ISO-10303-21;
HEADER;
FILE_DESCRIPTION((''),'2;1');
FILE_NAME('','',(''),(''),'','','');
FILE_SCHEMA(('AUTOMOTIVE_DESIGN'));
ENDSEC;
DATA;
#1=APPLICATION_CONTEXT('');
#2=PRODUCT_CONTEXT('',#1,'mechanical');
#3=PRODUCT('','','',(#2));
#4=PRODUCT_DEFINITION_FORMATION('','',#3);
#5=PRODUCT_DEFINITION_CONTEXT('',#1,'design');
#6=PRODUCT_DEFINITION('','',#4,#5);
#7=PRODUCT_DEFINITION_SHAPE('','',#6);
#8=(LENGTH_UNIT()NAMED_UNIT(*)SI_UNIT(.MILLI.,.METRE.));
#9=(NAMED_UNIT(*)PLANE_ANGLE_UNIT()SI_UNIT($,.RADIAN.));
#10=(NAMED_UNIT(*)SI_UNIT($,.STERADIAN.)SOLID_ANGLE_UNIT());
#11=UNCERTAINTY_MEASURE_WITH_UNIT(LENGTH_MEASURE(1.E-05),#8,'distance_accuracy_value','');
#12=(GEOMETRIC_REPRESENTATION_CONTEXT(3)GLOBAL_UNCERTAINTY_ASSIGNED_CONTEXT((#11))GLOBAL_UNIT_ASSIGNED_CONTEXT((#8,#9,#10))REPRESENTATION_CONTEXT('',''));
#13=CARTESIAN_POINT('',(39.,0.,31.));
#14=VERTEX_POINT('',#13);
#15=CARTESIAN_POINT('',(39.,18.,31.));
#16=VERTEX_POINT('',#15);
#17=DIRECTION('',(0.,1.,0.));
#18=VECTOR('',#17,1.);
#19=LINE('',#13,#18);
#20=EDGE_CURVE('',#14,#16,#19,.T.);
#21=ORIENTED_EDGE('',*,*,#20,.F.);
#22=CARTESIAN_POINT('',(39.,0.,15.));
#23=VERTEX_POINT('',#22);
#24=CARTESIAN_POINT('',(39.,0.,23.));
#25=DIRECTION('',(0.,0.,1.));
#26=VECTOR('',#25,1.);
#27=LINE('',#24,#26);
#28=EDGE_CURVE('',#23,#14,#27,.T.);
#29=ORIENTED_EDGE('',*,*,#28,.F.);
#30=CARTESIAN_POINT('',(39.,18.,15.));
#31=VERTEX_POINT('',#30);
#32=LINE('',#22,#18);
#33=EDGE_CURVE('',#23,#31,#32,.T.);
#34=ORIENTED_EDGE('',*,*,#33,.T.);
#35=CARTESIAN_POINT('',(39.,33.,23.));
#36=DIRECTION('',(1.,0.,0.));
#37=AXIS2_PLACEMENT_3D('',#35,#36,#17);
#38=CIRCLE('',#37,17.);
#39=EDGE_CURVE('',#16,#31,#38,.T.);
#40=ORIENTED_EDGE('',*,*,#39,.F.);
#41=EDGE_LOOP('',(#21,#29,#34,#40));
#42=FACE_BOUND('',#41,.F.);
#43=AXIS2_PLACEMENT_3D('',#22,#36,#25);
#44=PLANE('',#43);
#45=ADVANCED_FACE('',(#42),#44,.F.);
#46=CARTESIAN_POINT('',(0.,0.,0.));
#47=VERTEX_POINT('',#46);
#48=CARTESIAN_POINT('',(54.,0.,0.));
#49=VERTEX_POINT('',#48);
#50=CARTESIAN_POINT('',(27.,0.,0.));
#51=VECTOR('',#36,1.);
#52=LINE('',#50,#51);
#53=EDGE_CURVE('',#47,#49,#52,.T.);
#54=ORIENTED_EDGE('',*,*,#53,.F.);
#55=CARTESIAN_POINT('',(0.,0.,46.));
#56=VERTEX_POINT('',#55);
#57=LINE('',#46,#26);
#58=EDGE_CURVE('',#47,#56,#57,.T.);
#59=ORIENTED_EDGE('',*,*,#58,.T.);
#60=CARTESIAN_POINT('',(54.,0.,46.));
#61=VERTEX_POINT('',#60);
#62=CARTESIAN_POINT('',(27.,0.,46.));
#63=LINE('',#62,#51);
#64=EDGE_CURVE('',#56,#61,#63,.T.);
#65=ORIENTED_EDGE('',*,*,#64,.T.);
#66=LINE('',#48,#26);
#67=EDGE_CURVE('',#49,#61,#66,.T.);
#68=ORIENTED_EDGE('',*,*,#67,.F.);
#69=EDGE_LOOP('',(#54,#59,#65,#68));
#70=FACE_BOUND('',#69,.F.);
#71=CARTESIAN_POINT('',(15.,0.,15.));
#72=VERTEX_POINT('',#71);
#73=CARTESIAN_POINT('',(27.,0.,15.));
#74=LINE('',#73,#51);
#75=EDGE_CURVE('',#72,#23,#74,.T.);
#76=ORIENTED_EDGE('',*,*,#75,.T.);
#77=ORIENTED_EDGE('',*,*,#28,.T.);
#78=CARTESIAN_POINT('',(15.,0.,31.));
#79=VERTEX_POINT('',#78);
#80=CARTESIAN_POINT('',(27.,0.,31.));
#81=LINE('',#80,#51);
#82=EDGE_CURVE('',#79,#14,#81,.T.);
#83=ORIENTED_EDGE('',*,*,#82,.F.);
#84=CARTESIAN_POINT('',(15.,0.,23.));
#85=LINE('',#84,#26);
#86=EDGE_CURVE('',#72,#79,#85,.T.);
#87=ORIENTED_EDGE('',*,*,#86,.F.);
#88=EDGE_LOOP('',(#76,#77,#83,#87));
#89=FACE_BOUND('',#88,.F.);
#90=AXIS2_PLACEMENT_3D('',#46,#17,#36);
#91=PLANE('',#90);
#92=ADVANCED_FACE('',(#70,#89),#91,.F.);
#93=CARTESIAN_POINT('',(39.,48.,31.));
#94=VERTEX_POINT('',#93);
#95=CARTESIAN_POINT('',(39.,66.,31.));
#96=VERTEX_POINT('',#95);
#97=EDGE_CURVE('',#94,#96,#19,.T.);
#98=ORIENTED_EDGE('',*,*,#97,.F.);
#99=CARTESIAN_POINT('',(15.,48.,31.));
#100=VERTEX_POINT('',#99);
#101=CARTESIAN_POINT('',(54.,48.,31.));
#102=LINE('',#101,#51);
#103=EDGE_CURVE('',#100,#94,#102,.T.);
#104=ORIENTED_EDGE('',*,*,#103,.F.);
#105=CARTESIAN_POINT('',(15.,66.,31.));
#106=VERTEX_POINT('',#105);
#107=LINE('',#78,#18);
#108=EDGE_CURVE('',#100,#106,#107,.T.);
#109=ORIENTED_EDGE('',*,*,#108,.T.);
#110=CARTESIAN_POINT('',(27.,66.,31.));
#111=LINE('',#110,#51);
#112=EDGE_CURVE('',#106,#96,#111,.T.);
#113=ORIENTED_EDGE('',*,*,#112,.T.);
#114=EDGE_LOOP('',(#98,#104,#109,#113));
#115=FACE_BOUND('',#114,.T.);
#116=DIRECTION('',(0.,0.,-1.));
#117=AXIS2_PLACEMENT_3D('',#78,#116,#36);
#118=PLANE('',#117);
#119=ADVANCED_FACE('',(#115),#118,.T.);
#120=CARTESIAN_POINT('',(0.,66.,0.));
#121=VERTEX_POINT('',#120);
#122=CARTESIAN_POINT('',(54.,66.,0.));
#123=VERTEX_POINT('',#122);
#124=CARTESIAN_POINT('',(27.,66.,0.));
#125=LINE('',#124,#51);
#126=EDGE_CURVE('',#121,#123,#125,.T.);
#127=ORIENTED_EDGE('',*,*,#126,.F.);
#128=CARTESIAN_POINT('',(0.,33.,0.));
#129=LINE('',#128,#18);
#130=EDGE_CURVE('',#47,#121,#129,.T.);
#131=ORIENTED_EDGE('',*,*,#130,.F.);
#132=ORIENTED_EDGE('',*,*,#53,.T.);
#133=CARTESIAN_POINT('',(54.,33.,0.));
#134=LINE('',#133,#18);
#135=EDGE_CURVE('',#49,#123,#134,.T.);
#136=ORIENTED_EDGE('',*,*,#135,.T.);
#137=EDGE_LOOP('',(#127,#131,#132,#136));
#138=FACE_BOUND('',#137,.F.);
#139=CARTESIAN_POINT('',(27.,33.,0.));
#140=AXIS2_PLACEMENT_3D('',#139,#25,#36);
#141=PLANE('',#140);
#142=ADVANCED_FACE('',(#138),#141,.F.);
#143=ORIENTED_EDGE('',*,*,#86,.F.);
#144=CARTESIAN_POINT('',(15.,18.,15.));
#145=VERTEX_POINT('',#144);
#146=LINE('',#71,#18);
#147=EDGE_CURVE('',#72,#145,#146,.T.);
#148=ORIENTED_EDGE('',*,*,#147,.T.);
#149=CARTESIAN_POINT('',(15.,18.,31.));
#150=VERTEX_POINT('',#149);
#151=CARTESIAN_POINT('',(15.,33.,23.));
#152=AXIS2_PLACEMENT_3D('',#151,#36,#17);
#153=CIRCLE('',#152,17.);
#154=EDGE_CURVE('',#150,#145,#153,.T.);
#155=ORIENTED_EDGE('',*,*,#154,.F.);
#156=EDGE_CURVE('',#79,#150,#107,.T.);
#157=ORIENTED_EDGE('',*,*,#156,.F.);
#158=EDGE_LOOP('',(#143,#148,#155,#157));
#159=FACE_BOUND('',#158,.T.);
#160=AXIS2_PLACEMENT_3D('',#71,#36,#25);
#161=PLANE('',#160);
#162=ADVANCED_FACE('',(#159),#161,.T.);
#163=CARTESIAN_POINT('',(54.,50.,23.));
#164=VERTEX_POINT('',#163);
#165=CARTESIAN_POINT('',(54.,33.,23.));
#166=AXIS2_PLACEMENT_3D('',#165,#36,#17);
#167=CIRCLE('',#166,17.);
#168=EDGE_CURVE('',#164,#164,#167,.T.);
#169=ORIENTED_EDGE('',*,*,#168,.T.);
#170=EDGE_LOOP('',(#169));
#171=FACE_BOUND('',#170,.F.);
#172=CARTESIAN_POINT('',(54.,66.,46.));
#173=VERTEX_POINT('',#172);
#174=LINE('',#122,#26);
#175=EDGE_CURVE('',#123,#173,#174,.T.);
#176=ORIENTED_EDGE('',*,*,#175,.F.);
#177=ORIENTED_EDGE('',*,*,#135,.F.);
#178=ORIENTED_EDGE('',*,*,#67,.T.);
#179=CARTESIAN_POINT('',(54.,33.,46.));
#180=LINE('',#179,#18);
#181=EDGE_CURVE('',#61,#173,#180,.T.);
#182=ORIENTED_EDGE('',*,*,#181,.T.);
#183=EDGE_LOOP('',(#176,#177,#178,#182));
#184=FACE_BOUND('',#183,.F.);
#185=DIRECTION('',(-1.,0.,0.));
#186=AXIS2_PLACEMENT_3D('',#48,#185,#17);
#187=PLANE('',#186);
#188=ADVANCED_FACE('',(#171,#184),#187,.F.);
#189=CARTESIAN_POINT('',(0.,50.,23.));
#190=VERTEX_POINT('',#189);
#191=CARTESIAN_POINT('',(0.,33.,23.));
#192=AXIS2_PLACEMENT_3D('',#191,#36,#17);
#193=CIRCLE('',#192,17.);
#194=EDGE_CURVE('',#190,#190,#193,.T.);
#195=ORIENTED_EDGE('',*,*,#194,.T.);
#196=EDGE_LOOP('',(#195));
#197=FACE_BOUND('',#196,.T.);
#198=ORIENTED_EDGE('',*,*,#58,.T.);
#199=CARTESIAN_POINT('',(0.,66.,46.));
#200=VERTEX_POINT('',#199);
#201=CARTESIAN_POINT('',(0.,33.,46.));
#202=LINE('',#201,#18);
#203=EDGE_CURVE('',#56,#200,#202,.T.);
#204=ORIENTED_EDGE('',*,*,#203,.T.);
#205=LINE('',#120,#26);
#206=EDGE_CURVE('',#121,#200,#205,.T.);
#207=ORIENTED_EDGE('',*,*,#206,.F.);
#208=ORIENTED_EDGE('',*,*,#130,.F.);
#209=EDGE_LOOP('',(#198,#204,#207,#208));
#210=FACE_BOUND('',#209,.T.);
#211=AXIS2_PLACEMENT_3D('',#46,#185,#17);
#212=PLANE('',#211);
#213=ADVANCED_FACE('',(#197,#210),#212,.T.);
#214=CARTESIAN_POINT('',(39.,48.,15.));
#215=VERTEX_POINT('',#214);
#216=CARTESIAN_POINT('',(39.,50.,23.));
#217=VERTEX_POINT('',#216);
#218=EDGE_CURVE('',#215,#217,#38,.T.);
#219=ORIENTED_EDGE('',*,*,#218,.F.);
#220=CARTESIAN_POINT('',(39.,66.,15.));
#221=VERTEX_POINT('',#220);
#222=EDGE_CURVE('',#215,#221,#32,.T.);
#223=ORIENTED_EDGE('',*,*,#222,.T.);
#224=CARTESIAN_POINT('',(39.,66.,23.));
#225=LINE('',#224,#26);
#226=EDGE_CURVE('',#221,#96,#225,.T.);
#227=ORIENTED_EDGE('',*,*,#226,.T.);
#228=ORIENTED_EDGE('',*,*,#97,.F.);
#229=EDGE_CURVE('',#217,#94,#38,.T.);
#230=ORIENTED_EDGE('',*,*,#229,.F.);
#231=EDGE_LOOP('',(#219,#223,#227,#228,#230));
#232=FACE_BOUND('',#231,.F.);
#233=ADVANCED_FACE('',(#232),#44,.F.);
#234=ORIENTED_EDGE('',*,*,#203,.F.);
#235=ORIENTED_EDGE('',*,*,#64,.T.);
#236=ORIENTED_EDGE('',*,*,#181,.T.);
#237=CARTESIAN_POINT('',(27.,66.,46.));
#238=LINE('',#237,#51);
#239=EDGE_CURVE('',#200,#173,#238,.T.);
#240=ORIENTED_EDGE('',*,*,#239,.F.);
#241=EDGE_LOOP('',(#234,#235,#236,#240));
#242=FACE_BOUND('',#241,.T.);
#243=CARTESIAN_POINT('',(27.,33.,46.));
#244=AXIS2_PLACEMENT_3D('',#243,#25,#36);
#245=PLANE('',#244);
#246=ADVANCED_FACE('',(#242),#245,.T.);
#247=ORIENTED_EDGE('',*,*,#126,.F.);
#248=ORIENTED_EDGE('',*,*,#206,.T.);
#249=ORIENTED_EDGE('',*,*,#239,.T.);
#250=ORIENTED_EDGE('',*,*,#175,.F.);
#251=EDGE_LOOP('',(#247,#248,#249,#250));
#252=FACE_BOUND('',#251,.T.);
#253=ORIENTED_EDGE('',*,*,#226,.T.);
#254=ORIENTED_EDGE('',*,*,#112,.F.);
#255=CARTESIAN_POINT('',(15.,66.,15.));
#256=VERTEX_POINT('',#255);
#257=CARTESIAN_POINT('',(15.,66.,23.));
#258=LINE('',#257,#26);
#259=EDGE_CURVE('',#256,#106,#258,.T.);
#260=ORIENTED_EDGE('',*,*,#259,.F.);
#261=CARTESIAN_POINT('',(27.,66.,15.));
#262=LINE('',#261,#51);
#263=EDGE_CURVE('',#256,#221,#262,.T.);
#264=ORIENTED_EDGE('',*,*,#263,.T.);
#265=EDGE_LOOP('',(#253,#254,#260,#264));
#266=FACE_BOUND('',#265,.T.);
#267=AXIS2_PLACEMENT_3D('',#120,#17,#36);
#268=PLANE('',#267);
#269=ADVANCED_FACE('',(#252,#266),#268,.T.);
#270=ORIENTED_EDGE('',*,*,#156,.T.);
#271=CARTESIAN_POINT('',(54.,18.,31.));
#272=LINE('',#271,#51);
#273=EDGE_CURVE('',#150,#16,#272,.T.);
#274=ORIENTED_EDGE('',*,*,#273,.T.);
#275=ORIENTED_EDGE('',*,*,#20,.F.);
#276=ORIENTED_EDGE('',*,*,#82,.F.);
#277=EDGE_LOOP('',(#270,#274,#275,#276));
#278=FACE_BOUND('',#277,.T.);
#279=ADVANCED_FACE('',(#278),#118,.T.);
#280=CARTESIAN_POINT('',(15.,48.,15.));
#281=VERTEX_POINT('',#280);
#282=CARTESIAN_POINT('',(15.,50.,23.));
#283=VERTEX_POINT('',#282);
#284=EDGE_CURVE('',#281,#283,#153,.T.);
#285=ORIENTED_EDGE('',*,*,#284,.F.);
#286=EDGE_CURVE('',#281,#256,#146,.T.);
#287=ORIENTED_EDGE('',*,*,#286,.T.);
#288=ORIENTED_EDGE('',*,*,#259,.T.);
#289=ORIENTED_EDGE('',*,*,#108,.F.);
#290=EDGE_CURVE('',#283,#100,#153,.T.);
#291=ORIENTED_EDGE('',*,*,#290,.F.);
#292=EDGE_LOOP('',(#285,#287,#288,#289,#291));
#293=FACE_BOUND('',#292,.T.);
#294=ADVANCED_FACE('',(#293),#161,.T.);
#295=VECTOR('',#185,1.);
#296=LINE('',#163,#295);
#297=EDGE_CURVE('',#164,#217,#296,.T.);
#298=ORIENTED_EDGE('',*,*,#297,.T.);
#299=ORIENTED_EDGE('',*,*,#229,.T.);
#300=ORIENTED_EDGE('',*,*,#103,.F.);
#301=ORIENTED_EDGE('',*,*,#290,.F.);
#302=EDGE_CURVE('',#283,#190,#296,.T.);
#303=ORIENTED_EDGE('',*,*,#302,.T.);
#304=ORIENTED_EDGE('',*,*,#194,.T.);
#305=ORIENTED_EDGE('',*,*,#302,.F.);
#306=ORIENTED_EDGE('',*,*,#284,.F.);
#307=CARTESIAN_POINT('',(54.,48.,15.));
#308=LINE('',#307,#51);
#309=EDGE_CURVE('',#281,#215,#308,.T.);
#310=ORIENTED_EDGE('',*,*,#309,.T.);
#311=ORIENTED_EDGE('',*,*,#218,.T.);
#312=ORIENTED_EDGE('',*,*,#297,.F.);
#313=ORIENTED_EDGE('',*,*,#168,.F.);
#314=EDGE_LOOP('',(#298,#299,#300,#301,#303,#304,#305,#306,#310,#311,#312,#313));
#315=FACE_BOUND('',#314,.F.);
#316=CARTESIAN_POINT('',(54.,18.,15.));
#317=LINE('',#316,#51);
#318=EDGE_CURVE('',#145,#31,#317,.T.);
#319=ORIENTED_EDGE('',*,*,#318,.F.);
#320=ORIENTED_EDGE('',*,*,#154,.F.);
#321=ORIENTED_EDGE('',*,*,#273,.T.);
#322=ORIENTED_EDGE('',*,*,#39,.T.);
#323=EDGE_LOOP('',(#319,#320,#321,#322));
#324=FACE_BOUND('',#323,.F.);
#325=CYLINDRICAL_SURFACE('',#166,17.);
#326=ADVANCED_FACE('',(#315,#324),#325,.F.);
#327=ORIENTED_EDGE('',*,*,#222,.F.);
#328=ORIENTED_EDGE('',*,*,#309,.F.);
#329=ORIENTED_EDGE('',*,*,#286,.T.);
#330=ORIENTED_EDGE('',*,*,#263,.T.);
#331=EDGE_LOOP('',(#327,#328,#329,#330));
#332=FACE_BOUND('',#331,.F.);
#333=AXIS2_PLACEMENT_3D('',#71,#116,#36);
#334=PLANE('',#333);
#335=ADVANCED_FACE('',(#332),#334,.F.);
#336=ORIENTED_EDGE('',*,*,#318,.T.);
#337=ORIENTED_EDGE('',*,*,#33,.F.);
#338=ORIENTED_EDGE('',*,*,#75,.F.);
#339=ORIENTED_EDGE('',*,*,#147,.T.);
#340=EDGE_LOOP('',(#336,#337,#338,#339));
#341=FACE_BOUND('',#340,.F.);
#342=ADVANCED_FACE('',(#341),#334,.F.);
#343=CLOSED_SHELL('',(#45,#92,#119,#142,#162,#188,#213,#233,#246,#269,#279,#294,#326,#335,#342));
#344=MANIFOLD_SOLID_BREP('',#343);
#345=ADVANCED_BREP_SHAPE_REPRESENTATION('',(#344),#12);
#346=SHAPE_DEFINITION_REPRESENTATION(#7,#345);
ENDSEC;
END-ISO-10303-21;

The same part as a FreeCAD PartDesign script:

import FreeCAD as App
import Part
import Sketcher
Q = App.Units.Quantity

doc = App.newDocument("Part")
body = doc.addObject("PartDesign::Body", "Body")

# Sketch on XY plane
sketch1 = body.newObject("Sketcher::SketchObject", "Sketch")
sketch1.AttachmentSupport = (doc.getObject("XY_Plane"), [""])
sketch1.MapMode = "FlatFace"
sketch1.addGeometry([
    Part.LineSegment(App.Vector(0, 66, 0), App.Vector(0, 0, 0)),
    Part.LineSegment(App.Vector(0, 0, 0), App.Vector(54, 0, 0)),
    Part.LineSegment(App.Vector(54, 0, 0), App.Vector(54, 66, 0)),
    Part.LineSegment(App.Vector(54, 66, 0), App.Vector(0, 66, 0)),
], False)
sketch1.addConstraint([
    Sketcher.Constraint("Coincident", 0, 2, 1, 1),
    Sketcher.Constraint("Coincident", 1, 2, 2, 1),
    Sketcher.Constraint("Coincident", 2, 2, 3, 1),
    Sketcher.Constraint("Coincident", 3, 2, 0, 1),
    Sketcher.Constraint("Vertical", 0),
    Sketcher.Constraint("Horizontal", 1),
    Sketcher.Constraint("Vertical", 2),
    Sketcher.Constraint("Horizontal", 3),
    Sketcher.Constraint("Coincident", 0, 2, -1, 1),
    Sketcher.Constraint("DistanceX", 1, 1, 1, 2, Q("54 mm")),
    Sketcher.Constraint("DistanceY", 0, 2, 0, 1, Q("66 mm")),
])
pad1 = body.newObject("PartDesign::Pad", "Pad")
pad1.Profile = sketch1
pad1.Length = 46

# Sketch on XZ plane
sketch2 = body.newObject("Sketcher::SketchObject", "Sketch001")
sketch2.AttachmentSupport = (doc.getObject("XZ_Plane"), [""])
sketch2.MapMode = "FlatFace"
sketch2.addGeometry([
    Part.LineSegment(App.Vector(15, 31, 0), App.Vector(15, 15, 0)),
    Part.LineSegment(App.Vector(15, 15, 0), App.Vector(39, 15, 0)),
    Part.LineSegment(App.Vector(39, 15, 0), App.Vector(39, 31, 0)),
    Part.LineSegment(App.Vector(39, 31, 0), App.Vector(15, 31, 0)),
], False)
sketch2.addConstraint([
    Sketcher.Constraint("Coincident", 0, 2, 1, 1),
    Sketcher.Constraint("Coincident", 1, 2, 2, 1),
    Sketcher.Constraint("Coincident", 2, 2, 3, 1),
    Sketcher.Constraint("Coincident", 3, 2, 0, 1),
    Sketcher.Constraint("Vertical", 0),
    Sketcher.Constraint("Horizontal", 1),
    Sketcher.Constraint("Vertical", 2),
    Sketcher.Constraint("Horizontal", 3),
    Sketcher.Constraint("DistanceX", 1, 1, 1, 2, Q("24 mm")),
    Sketcher.Constraint("DistanceY", 0, 2, 0, 1, Q("16 mm")),
    Sketcher.Constraint("DistanceX", -1, 1, 0, 2, Q("15 mm")),
    Sketcher.Constraint("DistanceY", -1, 1, 0, 2, Q("15 mm")),
])
pocket1 = body.newObject("PartDesign::Pocket", "Pocket")
pocket1.Profile = sketch2
pocket1.Length = 66

# Sketch on YZ plane
sketch3 = body.newObject("Sketcher::SketchObject", "Sketch002")
sketch3.AttachmentSupport = (doc.getObject("YZ_Plane"), [""])
sketch3.MapMode = "FlatFace"
sketch3.AttachmentOffset = App.Placement(App.Vector(0, 0, 54), App.Rotation())
sketch3.addGeometry(Part.Circle(App.Vector(33, 23, 0), App.Vector(0, 0, 1), 17), False)
sketch3.addConstraint([
    Sketcher.Constraint("Diameter", 0, Q("34 mm")),
    Sketcher.Constraint("DistanceX", -1, 1, 0, 3, Q("33 mm")),
    Sketcher.Constraint("DistanceY", -1, 1, 0, 3, Q("23 mm")),
])
pocket2 = body.newObject("PartDesign::Pocket", "Pocket001")
pocket2.Profile = sketch3
pocket2.Length = 54

doc.recompute()
